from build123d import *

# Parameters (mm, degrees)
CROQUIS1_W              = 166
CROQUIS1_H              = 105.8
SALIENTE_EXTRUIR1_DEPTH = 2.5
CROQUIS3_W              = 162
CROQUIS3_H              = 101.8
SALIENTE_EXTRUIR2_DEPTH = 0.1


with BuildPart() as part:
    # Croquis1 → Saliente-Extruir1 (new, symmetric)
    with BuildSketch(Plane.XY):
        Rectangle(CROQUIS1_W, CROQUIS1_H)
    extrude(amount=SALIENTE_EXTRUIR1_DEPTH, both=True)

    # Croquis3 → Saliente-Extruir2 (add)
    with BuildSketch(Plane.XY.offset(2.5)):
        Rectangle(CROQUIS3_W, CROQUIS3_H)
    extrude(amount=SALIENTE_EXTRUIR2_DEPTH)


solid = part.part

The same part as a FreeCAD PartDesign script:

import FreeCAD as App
import Part
import Sketcher
from FreeCAD import Vector
Q = App.Units.Quantity


def add_polygon(sketch, points):
    """Adds a closed chain of lines whose ends are joined by coincident constraints."""
    first, n = sketch.GeometryCount, len(points)
    for a, b in zip(points, points[1:] + points[:1]):
        sketch.addGeometry(Part.LineSegment(App.Vector(*a, 0), App.Vector(*b, 0)), False)
    for i in range(n):
        sketch.addConstraint(Sketcher.Constraint("Coincident", first + i, 2, first + (i + 1) % n, 1))

doc = App.newDocument("Part")
params = doc.addObject("Spreadsheet::Sheet", "Params")
for row, (alias, value) in enumerate([
    ("sketch1_width", "166 mm"),
    ("sketch1_height", "105.8 mm"),
    ("pad1_length", "5 mm"),
    ("sketch2_width", "162 mm"),
    ("sketch2_height", "101.8 mm"),
    ("pad2_length", "0.1 mm"),
], start=1):
    params.set(f"A{row}", alias)
    params.set(f"B{row}", "=" + value)
    params.setAlias(f"B{row}", alias)

body = doc.addObject("PartDesign::Body", "Body")

# Sketch on XY plane
sketch1 = body.newObject("Sketcher::SketchObject", "Sketch")
sketch1.AttachmentSupport = (doc.getObject("XY_Plane"), [""])
sketch1.MapMode = "FlatFace"
add_polygon(sketch1, [(-83, 53), (-83, -53), (83, -53), (83, 53)])  # lines 0-3
sketch1.addConstraint([
    Sketcher.Constraint("Vertical", 0),
    Sketcher.Constraint("Horizontal", 1),
    Sketcher.Constraint("Vertical", 2),
    Sketcher.Constraint("Horizontal", 3),
    Sketcher.Constraint("Symmetric", 0, 2, 2, 2, -1, 1),
    Sketcher.Constraint("DistanceX", 1, 1, 1, 2, Q("166 mm")),
    Sketcher.Constraint("DistanceY", 0, 2, 0, 1, Q("105.8 mm")),
])
sketch1.setExpression("Constraints[9]", "Params.sketch1_width")
sketch1.setExpression("Constraints[10]", "Params.sketch1_height")
pad1 = body.newObject("PartDesign::Pad", "Pad")
pad1.Profile = sketch1
pad1.setExpression("Length", "Params.pad1_length")
pad1.Midplane = True

# Sketch on XY plane
sketch2 = body.newObject("Sketcher::SketchObject", "Sketch001")
sketch2.AttachmentSupport = (doc.getObject("XY_Plane"), [""])
sketch2.MapMode = "FlatFace"
sketch2.AttachmentOffset = App.Placement(Vector(0, 0, 2.5), App.Rotation())
add_polygon(sketch2, [(-81, 51), (-81, -51), (81, -51), (81, 51)])  # lines 0-3
sketch2.addConstraint([
    Sketcher.Constraint("Vertical", 0),
    Sketcher.Constraint("Horizontal", 1),
    Sketcher.Constraint("Vertical", 2),
    Sketcher.Constraint("Horizontal", 3),
    Sketcher.Constraint("Symmetric", 0, 2, 2, 2, -1, 1),
    Sketcher.Constraint("DistanceX", 1, 1, 1, 2, Q("162 mm")),
    Sketcher.Constraint("DistanceY", 0, 2, 0, 1, Q("101.8 mm")),
])
sketch2.setExpression("Constraints[9]", "Params.sketch2_width")
sketch2.setExpression("Constraints[10]", "Params.sketch2_height")
pad2 = body.newObject("PartDesign::Pad", "Pad001")
pad2.Profile = sketch2
pad2.setExpression("Length", "Params.pad2_length")

doc.recompute()
